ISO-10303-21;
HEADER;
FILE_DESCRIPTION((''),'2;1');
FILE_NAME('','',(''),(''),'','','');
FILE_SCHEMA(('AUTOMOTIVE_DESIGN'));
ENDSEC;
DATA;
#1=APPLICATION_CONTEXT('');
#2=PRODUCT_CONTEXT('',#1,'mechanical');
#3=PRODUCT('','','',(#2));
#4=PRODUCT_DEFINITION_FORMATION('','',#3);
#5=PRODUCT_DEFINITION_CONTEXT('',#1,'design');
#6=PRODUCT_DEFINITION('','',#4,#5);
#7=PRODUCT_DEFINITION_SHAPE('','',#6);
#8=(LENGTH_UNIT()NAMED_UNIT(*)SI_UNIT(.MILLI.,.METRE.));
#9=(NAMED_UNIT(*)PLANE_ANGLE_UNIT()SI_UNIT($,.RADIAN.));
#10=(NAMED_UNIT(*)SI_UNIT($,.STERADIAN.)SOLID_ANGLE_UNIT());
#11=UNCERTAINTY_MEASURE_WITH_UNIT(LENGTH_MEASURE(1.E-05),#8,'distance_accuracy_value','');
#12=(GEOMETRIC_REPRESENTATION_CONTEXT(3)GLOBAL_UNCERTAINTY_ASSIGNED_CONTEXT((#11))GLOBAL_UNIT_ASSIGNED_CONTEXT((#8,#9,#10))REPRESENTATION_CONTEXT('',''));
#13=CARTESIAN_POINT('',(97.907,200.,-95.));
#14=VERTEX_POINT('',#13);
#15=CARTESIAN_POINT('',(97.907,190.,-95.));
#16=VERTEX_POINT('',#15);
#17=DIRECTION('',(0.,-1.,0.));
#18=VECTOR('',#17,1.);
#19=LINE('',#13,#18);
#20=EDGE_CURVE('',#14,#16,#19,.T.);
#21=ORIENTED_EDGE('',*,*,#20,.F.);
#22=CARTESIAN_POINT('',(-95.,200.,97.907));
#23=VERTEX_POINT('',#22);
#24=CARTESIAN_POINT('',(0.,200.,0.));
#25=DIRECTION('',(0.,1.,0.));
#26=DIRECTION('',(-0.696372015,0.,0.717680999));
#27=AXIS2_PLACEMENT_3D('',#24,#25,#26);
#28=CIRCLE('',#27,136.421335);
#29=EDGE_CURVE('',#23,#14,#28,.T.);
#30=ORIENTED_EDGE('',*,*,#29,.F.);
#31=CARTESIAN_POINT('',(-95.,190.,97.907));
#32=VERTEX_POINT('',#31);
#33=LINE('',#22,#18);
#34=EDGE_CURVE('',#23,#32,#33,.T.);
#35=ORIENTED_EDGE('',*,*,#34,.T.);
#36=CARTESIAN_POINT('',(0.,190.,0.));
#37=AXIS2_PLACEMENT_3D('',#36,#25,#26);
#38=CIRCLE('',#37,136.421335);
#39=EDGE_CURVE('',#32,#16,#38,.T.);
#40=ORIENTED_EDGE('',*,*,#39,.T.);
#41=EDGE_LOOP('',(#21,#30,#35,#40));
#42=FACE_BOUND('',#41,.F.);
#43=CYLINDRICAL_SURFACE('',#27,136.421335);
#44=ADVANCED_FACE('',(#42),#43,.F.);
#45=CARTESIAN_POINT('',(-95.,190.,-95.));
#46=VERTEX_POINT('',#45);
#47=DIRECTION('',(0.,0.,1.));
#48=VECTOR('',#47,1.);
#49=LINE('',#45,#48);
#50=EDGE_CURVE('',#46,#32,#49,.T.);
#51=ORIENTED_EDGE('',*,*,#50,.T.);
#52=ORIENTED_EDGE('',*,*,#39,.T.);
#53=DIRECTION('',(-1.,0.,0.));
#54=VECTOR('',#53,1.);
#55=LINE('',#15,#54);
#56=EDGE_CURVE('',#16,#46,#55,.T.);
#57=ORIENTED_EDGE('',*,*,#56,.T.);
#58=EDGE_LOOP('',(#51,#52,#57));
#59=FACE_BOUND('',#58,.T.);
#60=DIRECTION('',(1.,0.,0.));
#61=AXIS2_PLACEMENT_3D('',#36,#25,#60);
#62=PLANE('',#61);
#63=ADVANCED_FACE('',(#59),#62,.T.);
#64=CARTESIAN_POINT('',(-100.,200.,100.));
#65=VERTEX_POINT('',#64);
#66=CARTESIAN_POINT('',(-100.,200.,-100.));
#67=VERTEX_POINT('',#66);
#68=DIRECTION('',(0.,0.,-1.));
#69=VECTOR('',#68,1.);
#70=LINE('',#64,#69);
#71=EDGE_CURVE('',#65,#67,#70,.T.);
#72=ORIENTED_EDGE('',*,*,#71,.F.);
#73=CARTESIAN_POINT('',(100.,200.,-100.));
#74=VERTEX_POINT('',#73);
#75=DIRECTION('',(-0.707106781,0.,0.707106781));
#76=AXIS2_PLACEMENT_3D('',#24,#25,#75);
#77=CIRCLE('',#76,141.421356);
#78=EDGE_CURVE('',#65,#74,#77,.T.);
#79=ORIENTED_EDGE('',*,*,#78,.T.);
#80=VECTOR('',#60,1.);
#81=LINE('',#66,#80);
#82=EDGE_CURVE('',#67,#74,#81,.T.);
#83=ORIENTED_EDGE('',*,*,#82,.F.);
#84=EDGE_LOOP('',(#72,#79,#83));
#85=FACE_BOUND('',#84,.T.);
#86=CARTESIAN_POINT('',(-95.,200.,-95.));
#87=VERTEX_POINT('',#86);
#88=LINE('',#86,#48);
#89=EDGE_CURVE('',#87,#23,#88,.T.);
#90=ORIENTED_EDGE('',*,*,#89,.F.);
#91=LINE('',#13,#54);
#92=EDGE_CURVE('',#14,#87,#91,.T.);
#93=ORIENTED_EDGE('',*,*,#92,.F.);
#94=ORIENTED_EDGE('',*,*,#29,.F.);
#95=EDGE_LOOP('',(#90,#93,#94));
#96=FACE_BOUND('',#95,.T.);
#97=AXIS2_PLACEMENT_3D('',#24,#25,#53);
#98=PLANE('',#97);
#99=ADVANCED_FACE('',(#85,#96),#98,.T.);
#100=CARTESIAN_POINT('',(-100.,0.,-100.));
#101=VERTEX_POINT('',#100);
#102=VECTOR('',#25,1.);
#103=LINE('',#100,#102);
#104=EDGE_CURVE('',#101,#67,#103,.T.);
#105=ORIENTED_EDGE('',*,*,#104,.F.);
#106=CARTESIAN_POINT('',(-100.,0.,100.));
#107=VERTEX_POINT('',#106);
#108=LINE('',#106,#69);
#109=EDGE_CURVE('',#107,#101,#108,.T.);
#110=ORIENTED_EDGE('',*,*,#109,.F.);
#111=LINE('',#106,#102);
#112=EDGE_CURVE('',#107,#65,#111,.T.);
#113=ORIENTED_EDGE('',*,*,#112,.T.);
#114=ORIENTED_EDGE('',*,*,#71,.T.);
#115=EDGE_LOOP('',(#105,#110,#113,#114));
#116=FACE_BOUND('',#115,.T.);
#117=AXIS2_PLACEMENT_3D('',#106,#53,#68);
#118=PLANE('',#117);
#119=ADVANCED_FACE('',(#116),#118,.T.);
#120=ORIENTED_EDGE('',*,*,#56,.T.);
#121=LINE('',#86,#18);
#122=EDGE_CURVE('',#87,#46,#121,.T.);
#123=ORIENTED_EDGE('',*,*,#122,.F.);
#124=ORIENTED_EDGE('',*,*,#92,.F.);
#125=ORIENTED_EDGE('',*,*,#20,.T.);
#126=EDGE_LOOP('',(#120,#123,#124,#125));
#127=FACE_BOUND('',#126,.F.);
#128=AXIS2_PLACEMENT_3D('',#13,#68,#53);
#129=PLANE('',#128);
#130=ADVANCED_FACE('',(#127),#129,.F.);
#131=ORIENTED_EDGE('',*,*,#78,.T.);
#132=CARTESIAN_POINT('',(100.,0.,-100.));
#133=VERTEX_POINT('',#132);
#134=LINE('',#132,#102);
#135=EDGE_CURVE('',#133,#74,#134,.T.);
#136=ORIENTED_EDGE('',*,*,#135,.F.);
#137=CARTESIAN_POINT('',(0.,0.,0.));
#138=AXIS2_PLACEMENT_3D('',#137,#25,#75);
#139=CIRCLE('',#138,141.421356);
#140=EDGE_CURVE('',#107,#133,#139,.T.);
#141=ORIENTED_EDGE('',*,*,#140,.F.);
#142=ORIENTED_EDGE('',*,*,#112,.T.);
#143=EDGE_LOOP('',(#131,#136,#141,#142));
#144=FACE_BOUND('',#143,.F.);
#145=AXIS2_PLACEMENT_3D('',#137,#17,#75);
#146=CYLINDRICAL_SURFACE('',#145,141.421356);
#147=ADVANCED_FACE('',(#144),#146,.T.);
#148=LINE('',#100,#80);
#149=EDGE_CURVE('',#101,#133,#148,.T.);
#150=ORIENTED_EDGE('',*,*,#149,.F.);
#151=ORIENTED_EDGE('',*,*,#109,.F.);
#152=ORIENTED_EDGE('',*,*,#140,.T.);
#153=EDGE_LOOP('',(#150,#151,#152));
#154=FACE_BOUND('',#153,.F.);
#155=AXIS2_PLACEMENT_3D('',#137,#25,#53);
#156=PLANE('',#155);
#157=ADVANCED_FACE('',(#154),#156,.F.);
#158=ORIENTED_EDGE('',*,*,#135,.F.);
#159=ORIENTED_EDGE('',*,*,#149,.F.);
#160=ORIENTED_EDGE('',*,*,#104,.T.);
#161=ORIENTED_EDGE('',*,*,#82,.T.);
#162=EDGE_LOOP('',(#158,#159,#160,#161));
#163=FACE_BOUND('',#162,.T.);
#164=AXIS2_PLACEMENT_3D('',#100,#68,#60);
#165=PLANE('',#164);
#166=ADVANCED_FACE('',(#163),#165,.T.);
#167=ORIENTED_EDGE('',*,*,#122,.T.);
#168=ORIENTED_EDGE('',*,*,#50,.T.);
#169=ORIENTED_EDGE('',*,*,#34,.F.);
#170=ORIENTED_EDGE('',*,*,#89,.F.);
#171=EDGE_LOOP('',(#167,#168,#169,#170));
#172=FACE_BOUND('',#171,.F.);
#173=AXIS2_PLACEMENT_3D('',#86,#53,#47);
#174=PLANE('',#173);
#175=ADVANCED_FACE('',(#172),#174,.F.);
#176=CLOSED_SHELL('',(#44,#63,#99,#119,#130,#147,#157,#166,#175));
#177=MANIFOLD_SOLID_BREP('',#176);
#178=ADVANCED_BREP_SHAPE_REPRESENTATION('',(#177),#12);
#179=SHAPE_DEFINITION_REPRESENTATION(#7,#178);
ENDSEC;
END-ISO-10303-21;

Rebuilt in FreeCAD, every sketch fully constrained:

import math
import FreeCAD as App
import Part
import Sketcher
from FreeCAD import Vector

doc = App.newDocument("Part")
params = doc.addObject("Spreadsheet::Sheet", "Params")
for row, (alias, value) in enumerate([
    ("sketch1_width", "200 mm"),
    ("pad1_length", "200 mm"),
    ("pocket1_length", "10 mm"),
], start=1):
    params.set(f"A{row}", alias)
    params.set(f"B{row}", "=" + value)
    params.setAlias(f"B{row}", alias)

body = doc.addObject("PartDesign::Body", "Body")

sketch1 = body.newObject("Sketcher::SketchObject", "Sketch")
sketch1.AttachmentSupport = (doc.getObject("XZ_Plane"), [""])
sketch1.MapMode = "FlatFace"
sketch1.addGeometry([
    Part.LineSegment(Vector(-100, -100, 0), Vector(-100, 100, 0)),
    Part.ArcOfCircle(Part.Circle(Vector(0, 0, 0), Vector(0, 0, 1), 141), math.radians(-45), math.radians(135)),
    Part.LineSegment(Vector(100, -100, 0), Vector(-100, -100, 0)),
], False)
sketch1.addConstraint([
    Sketcher.Constraint("Coincident", 0, 2, 1, 2),
    Sketcher.Constraint("Coincident", 1, 1, 2, 1),
    Sketcher.Constraint("Coincident", 2, 2, 0, 1),
    Sketcher.Constraint("Vertical", 0),
    Sketcher.Constraint("Horizontal", 2),
    Sketcher.Constraint("Coincident", 1, 3, -1, 1),
    Sketcher.Constraint("Equal", 2, 0),
    Sketcher.Constraint("DistanceX", 2, 2, 2, 1, 200.0),
    Sketcher.Constraint("DistanceX", 0, 2, -1, 1, 100.0),
])
sketch1.setExpression("Constraints[7]", "Params.sketch1_width")
pad1 = body.newObject("PartDesign::Pad", "Pad")
pad1.Profile = sketch1
pad1.setExpression("Length", "Params.pad1_length")
pad1.Reversed = True

sketch2 = body.newObject("Sketcher::SketchObject", "Sketch001")
sketch2.AttachmentSupport = (doc.getObject("XZ_Plane"), [""])
sketch2.MapMode = "FlatFace"
sketch2.AttachmentOffset = App.Placement(Vector(0, 0, -200), App.Rotation())
sketch2.addGeometry([
    Part.ArcOfCircle(Part.Circle(Vector(0, 0, 0), Vector(0, 0, 1), 136), math.radians(-44), math.radians(134)),
    Part.LineSegment(Vector(98, -95, 0), Vector(-95, -95, 0)),
    Part.LineSegment(Vector(-95, -95, 0), Vector(-95, 98, 0)),
], False)
sketch2.addConstraint([
    Sketcher.Constraint("Coincident", 0, 1, 1, 1),
    Sketcher.Constraint("Coincident", 1, 2, 2, 1),
    Sketcher.Constraint("Coincident", 2, 2, 0, 2),
    Sketcher.Constraint("Horizontal", 1),
    Sketcher.Constraint("Vertical", 2),
    Sketcher.Constraint("Coincident", 0, 3, -1, 1),
    Sketcher.Constraint("Equal", 1, 2),
    Sketcher.Constraint("DistanceY", 0, 1, -1, 1, 95.0),
    Sketcher.Constraint("Radius", 0, 136.4213),
])
pocket1 = body.newObject("PartDesign::Pocket", "Pocket")
pocket1.Profile = sketch2
pocket1.setExpression("Length", "Params.pocket1_length")
pocket1.Reversed = True

doc.recompute()
